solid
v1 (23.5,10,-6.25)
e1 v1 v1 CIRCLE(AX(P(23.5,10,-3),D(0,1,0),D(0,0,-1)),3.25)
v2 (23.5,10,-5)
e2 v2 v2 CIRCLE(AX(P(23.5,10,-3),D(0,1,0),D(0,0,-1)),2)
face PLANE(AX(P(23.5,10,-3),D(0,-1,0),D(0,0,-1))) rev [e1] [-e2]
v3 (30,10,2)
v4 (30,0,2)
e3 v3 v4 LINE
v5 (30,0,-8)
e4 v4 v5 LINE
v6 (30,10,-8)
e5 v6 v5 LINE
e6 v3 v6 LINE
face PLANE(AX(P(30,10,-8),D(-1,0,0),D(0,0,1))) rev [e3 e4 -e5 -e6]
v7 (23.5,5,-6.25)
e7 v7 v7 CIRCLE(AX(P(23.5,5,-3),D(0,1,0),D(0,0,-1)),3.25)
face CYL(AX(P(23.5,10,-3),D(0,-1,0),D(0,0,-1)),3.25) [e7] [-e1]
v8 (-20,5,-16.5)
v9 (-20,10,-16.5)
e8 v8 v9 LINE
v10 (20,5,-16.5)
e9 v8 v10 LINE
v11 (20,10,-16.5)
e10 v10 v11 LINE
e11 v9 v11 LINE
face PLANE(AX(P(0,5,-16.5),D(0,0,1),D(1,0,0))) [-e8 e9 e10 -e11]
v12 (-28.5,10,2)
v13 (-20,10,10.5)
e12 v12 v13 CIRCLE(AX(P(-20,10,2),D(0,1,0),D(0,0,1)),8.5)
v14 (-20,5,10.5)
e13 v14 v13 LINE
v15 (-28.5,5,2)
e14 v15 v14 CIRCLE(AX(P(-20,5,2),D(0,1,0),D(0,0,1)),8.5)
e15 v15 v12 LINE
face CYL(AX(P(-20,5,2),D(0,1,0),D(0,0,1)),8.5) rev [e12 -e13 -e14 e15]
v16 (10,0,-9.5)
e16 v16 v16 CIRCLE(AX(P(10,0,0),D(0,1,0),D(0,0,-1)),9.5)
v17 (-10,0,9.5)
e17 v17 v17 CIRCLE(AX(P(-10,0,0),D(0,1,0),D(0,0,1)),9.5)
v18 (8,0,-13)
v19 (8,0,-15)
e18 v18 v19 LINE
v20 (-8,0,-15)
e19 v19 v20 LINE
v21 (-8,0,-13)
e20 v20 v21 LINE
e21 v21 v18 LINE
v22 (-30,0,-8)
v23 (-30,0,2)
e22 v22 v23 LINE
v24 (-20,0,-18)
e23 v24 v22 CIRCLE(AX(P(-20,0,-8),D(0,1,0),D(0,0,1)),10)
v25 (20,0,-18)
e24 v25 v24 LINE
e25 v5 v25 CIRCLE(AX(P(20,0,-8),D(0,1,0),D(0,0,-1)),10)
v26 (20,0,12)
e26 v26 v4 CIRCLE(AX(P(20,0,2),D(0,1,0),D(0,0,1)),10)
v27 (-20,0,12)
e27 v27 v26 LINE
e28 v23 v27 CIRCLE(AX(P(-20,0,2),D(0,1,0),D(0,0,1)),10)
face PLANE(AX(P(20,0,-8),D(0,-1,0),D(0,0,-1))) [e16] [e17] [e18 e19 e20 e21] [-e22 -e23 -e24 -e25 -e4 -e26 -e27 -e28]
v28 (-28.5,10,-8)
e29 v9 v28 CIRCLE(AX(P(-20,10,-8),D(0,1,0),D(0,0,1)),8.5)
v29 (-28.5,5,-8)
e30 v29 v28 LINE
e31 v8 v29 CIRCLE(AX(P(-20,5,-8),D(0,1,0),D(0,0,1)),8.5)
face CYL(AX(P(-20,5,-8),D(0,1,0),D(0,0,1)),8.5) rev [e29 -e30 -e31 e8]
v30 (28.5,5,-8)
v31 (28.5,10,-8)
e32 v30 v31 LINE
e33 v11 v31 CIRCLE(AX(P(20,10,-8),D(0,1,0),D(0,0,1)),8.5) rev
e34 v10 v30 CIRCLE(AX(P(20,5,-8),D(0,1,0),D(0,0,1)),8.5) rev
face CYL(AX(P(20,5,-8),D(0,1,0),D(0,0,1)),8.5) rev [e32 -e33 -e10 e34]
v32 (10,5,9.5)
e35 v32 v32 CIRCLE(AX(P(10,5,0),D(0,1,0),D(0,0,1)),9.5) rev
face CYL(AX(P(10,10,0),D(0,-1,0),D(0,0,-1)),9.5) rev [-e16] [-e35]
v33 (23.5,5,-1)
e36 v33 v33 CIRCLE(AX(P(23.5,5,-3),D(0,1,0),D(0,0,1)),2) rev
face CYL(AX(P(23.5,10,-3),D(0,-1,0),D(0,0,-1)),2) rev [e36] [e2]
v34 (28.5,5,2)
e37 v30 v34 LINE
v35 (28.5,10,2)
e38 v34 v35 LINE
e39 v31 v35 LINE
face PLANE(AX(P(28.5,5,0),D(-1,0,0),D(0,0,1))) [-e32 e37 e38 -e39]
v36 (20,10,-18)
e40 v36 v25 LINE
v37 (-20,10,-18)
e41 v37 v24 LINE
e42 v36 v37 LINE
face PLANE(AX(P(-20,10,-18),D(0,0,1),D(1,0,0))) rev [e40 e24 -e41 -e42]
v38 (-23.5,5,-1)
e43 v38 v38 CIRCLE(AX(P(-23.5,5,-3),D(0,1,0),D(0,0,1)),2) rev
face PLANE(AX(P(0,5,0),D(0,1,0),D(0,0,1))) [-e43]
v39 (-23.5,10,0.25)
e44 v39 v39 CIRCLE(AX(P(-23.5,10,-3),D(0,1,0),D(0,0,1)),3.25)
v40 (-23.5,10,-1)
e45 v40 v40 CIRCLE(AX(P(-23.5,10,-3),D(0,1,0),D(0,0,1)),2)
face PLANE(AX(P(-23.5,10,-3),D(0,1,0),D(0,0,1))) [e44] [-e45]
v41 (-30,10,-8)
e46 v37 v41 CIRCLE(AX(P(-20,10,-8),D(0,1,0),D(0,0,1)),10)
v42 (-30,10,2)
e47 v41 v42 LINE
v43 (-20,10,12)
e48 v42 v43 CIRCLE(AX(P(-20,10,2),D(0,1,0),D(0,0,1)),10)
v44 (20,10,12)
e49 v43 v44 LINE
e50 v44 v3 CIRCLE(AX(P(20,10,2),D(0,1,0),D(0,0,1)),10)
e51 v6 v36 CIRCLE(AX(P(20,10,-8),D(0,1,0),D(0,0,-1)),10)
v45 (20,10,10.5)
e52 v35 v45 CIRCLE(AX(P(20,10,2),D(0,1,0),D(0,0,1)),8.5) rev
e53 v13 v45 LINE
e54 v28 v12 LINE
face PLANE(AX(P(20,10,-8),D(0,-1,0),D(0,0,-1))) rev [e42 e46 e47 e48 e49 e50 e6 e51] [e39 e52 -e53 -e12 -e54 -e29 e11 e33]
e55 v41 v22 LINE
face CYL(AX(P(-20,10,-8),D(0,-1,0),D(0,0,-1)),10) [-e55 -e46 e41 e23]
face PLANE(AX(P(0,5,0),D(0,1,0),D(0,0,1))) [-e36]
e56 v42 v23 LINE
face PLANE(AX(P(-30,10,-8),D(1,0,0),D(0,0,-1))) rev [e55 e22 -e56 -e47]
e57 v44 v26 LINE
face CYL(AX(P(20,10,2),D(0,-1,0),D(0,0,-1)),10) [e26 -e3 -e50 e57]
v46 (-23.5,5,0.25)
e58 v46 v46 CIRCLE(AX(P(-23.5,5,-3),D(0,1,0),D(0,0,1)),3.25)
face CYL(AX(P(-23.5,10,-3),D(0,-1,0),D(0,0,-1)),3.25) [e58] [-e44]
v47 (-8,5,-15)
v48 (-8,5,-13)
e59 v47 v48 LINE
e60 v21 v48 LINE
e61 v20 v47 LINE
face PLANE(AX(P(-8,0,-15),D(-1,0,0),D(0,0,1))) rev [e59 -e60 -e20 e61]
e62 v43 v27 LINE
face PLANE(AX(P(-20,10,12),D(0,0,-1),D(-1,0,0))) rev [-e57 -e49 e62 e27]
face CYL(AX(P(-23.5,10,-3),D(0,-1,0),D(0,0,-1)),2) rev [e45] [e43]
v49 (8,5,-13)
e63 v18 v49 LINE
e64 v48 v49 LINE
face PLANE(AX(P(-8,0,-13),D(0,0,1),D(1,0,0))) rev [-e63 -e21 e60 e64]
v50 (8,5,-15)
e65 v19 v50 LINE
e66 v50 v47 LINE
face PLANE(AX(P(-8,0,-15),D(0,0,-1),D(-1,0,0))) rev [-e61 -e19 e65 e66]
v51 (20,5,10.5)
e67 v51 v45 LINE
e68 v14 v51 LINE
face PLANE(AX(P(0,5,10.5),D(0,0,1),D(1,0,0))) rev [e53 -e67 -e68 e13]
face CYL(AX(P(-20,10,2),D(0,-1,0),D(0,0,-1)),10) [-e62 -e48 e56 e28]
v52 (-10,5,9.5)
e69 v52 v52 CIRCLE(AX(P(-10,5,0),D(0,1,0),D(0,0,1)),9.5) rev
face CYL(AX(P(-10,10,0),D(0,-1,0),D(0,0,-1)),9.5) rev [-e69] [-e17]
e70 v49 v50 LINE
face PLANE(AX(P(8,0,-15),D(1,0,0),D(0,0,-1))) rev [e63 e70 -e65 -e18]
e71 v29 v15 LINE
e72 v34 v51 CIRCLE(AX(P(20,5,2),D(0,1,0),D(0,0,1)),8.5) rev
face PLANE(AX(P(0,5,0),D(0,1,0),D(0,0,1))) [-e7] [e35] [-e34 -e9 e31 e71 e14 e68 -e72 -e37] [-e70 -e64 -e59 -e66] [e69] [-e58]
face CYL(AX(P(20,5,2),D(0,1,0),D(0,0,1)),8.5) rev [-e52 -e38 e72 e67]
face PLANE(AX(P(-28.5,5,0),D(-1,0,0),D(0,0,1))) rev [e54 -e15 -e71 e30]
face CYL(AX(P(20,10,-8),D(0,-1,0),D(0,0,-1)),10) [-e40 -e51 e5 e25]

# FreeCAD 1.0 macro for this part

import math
import FreeCAD as App
import Part
import Sketcher

V = App.Vector

doc = App.newDocument("Part")
params = doc.addObject("Spreadsheet::Sheet", "Params")
for row, (alias, value) in enumerate([
    ("sketch1_diameter", "19 mm"),
    ("sketch1_radius", "10 mm"),
    ("sketch1_width", "40 mm"),
    ("sketch1_height", "10 mm"),
    ("pad1_length", "10 mm"),
    ("sketch2_radius", "8.5 mm"),
    ("sketch2_width", "40 mm"),
    ("sketch2_height", "10 mm"),
    ("pocket1_length", "5 mm"),
    ("sketch3_diameter", "4 mm"),
    ("sketch3_diameter2", "6.5 mm"),
    ("pad2_length", "5 mm"),
    ("sketch4_width", "16 mm"),
    ("sketch4_height", "2 mm"),
], start=1):
    params.set(f"A{row}", alias)
    params.set(f"B{row}", "=" + value)
    params.setAlias(f"B{row}", alias)

body = doc.addObject("PartDesign::Body", "Body")

# Sketch on XZ plane
sketch1 = body.newObject("Sketcher::SketchObject", "Sketch")
sketch1.AttachmentSupport = (doc.getObject("XZ_Plane"), [""])
sketch1.MapMode = "FlatFace"
sketch1.addGeometry([
    Part.LineSegment(V(20, -18, 0), V(-20, -18, 0)),  # 0
    Part.ArcOfCircle(Part.Circle(V(-20, -8, 0), V(0, 0, 1), 10), math.radians(180), math.radians(270)),  # 1
    Part.LineSegment(V(-30, -8, 0), V(-30, 2, 0)),  # 2
    Part.ArcOfCircle(Part.Circle(V(-20, 2, 0), V(0, 0, 1), 10), math.radians(90), math.radians(180)),  # 3
    Part.LineSegment(V(-20, 12, 0), V(20, 12, 0)),  # 4
    Part.ArcOfCircle(Part.Circle(V(20, 2, 0), V(0, 0, 1), 10), math.radians(0), math.radians(90)),  # 5
    Part.LineSegment(V(30, 2, 0), V(30, -8, 0)),  # 6
    Part.ArcOfCircle(Part.Circle(V(20, -8, 0), V(0, 0, 1), 10), math.radians(-90), math.radians(0)),  # 7
    Part.Circle(V(10, 0, 0), V(0, 0, 1), 10),  # 8
    Part.Circle(V(-10, 0, 0), V(0, 0, 1), 10),  # 9
], False)
sketch1.addConstraint([
    Sketcher.Constraint("Tangent", 0, 2, 1, 2),
    Sketcher.Constraint("Tangent", 1, 1, 2, 1),
    Sketcher.Constraint("Tangent", 2, 2, 3, 2),
    Sketcher.Constraint("Tangent", 3, 1, 4, 1),
    Sketcher.Constraint("Tangent", 4, 2, 5, 2),
    Sketcher.Constraint("Tangent", 5, 1, 6, 1),
    Sketcher.Constraint("Tangent", 6, 2, 7, 2),
    Sketcher.Constraint("Tangent", 7, 1, 0, 1),
    Sketcher.Constraint("Horizontal", 0),
    Sketcher.Constraint("Vertical", 2),
    Sketcher.Constraint("Horizontal", 4),
    Sketcher.Constraint("Vertical", 6),
    Sketcher.Constraint("Equal", 1, 3),
    Sketcher.Constraint("Equal", 3, 5),
    Sketcher.Constraint("Equal", 5, 7),
    Sketcher.Constraint("Equal", 8, 9),
    Sketcher.Constraint("Symmetric", 8, 3, 9, 3, -1, 1),
    Sketcher.Constraint("PointOnObject", 8, 3, -1),
    Sketcher.Constraint("Diameter", 8, 19.0),
    Sketcher.Constraint("Radius", 1, 10.0),
    Sketcher.Constraint("DistanceX", 0, 2, 0, 1, 40.0),
    Sketcher.Constraint("DistanceY", 2, 1, 2, 2, 10.0),
    Sketcher.Constraint("DistanceX", 1, 3, -1, 1, 20.0),
    Sketcher.Constraint("DistanceY", 1, 3, -1, 1, 8.0),
    Sketcher.Constraint("DistanceX", -1, 1, 8, 3, 10.0),
])
sketch1.setExpression("Constraints[18]", "Params.sketch1_diameter")
sketch1.setExpression("Constraints[19]", "Params.sketch1_radius")
sketch1.setExpression("Constraints[20]", "Params.sketch1_width")
sketch1.setExpression("Constraints[21]", "Params.sketch1_height")
pad1 = body.newObject("PartDesign::Pad", "Pad")
pad1.Profile = sketch1
pad1.setExpression("Length", "Params.pad1_length")
pad1.Reversed = True

# Sketch on XZ plane
sketch2 = body.newObject("Sketcher::SketchObject", "Sketch001")
sketch2.AttachmentSupport = (doc.getObject("XZ_Plane"), [""])
sketch2.MapMode = "FlatFace"
sketch2.AttachmentOffset = App.Placement(V(0, 0, -10), App.Rotation())
sketch2.addGeometry([
    Part.LineSegment(V(20, -16, 0), V(-20, -16, 0)),  # 0
    Part.ArcOfCircle(Part.Circle(V(-20, -8, 0), V(0, 0, 1), 8), math.radians(180), math.radians(270)),  # 1
    Part.LineSegment(V(-28, -8, 0), V(-28, 2, 0)),  # 2
    Part.ArcOfCircle(Part.Circle(V(-20, 2, 0), V(0, 0, 1), 8), math.radians(90), math.radians(180)),  # 3
    Part.LineSegment(V(-20, 10, 0), V(20, 10, 0)),  # 4
    Part.ArcOfCircle(Part.Circle(V(20, 2, 0), V(0, 0, 1), 8), math.radians(0), math.radians(90)),  # 5
    Part.LineSegment(V(28, 2, 0), V(28, -8, 0)),  # 6
    Part.ArcOfCircle(Part.Circle(V(20, -8, 0), V(0, 0, 1), 8), math.radians(-90), math.radians(0)),  # 7
], False)
sketch2.addConstraint([
    Sketcher.Constraint("Tangent", 0, 2, 1, 2),
    Sketcher.Constraint("Tangent", 1, 1, 2, 1),
    Sketcher.Constraint("Tangent", 2, 2, 3, 2),
    Sketcher.Constraint("Tangent", 3, 1, 4, 1),
    Sketcher.Constraint("Tangent", 4, 2, 5, 2),
    Sketcher.Constraint("Tangent", 5, 1, 6, 1),
    Sketcher.Constraint("Tangent", 6, 2, 7, 2),
    Sketcher.Constraint("Tangent", 7, 1, 0, 1),
    Sketcher.Constraint("Horizontal", 0),
    Sketcher.Constraint("Vertical", 2),
    Sketcher.Constraint("Horizontal", 4),
    Sketcher.Constraint("Vertical", 6),
    Sketcher.Constraint("Equal", 1, 3),
    Sketcher.Constraint("Equal", 3, 5),
    Sketcher.Constraint("Equal", 5, 7),
    Sketcher.Constraint("Radius", 1, 8.5),
    Sketcher.Constraint("DistanceX", 0, 2, 0, 1, 40.0),
    Sketcher.Constraint("DistanceY", 2, 1, 2, 2, 10.0),
    Sketcher.Constraint("DistanceX", 1, 3, -1, 1, 20.0),
    Sketcher.Constraint("DistanceY", 1, 3, -1, 1, 8.0),
])
sketch2.setExpression("Constraints[15]", "Params.sketch2_radius")
sketch2.setExpression("Constraints[16]", "Params.sketch2_width")
sketch2.setExpression("Constraints[17]", "Params.sketch2_height")
pocket1 = body.newObject("PartDesign::Pocket", "Pocket")
pocket1.Profile = sketch2
pocket1.setExpression("Length", "Params.pocket1_length")
pocket1.Reversed = True

# Sketch on XZ plane
sketch3 = body.newObject("Sketcher::SketchObject", "Sketch002")
sketch3.AttachmentSupport = (doc.getObject("XZ_Plane"), [""])
sketch3.MapMode = "FlatFace"
sketch3.AttachmentOffset = App.Placement(V(0, 0, -5), App.Rotation())
sketch3.addGeometry([
    Part.Circle(V(-23.5, -3, 0), V(0, 0, 1), 3.2),
    Part.Circle(V(-23.5, -3, 0), V(0, 0, 1), 2),
    Part.Circle(V(23.5, -3, 0), V(0, 0, 1), 3.2),
    Part.Circle(V(23.5, -3, 0), V(0, 0, 1), 2),
], False)
sketch3.addConstraint([
    Sketcher.Constraint("Coincident", 1, 3, 0, 3),
    Sketcher.Constraint("Coincident", 3, 3, 2, 3),
    Sketcher.Constraint("Equal", 0, 2),
    Sketcher.Constraint("Equal", 1, 3),
    Sketcher.Constraint("Symmetric", 0, 3, 2, 3, -2),
    Sketcher.Constraint("Diameter", 1, 4.0),
    Sketcher.Constraint("Diameter", 0, 6.5),
    Sketcher.Constraint("DistanceY", 0, 3, -1, 1, 3.0),
    Sketcher.Constraint("DistanceX", 0, 3, 2, 3, 47.0),
])
sketch3.setExpression("Constraints[5]", "Params.sketch3_diameter")
sketch3.setExpression("Constraints[6]", "Params.sketch3_diameter2")
pad2 = body.newObject("PartDesign::Pad", "Pad001")
pad2.Profile = sketch3
pad2.setExpression("Length", "Params.pad2_length")
pad2.Reversed = True

# Sketch on XZ plane
sketch4 = body.newObject("Sketcher::SketchObject", "Sketch003")
sketch4.AttachmentSupport = (doc.getObject("XZ_Plane"), [""])
sketch4.MapMode = "FlatFace"
sketch4.AttachmentOffset = App.Placement(V(0, 0, -5), App.Rotation())
sketch4.addGeometry([
    Part.LineSegment(V(-8, -15, 0), V(-8, -13, 0)),
    Part.LineSegment(V(-8, -13, 0), V(8, -13, 0)),
    Part.LineSegment(V(8, -13, 0), V(8, -15, 0)),
    Part.LineSegment(V(8, -15, 0), V(-8, -15, 0)),
], False)
sketch4.addConstraint([
    Sketcher.Constraint("Coincident", 0, 2, 1, 1),
    Sketcher.Constraint("Coincident", 1, 2, 2, 1),
    Sketcher.Constraint("Coincident", 2, 2, 3, 1),
    Sketcher.Constraint("Coincident", 3, 2, 0, 1),
    Sketcher.Constraint("Vertical", 0),
    Sketcher.Constraint("Horizontal", 1),
    Sketcher.Constraint("Vertical", 2),
    Sketcher.Constraint("Horizontal", 3),
    Sketcher.Constraint("DistanceX", 1, 1, 1, 2, 16.0),
    Sketcher.Constraint("DistanceY", 0, 1, 0, 2, 2.0),
    Sketcher.Constraint("DistanceX", 0, 2, -1, 1, 8.0),
    Sketcher.Constraint("DistanceY", 0, 2, -1, 1, 13.0),
])
sketch4.setExpression("Constraints[8]", "Params.sketch4_width")
sketch4.setExpression("Constraints[9]", "Params.sketch4_height")
pocket2 = body.newObject("PartDesign::Pocket", "Pocket001")
pocket2.Profile = sketch4
pocket2.Type = "ThroughAll"
pocket2.Reversed = True

doc.recompute()
